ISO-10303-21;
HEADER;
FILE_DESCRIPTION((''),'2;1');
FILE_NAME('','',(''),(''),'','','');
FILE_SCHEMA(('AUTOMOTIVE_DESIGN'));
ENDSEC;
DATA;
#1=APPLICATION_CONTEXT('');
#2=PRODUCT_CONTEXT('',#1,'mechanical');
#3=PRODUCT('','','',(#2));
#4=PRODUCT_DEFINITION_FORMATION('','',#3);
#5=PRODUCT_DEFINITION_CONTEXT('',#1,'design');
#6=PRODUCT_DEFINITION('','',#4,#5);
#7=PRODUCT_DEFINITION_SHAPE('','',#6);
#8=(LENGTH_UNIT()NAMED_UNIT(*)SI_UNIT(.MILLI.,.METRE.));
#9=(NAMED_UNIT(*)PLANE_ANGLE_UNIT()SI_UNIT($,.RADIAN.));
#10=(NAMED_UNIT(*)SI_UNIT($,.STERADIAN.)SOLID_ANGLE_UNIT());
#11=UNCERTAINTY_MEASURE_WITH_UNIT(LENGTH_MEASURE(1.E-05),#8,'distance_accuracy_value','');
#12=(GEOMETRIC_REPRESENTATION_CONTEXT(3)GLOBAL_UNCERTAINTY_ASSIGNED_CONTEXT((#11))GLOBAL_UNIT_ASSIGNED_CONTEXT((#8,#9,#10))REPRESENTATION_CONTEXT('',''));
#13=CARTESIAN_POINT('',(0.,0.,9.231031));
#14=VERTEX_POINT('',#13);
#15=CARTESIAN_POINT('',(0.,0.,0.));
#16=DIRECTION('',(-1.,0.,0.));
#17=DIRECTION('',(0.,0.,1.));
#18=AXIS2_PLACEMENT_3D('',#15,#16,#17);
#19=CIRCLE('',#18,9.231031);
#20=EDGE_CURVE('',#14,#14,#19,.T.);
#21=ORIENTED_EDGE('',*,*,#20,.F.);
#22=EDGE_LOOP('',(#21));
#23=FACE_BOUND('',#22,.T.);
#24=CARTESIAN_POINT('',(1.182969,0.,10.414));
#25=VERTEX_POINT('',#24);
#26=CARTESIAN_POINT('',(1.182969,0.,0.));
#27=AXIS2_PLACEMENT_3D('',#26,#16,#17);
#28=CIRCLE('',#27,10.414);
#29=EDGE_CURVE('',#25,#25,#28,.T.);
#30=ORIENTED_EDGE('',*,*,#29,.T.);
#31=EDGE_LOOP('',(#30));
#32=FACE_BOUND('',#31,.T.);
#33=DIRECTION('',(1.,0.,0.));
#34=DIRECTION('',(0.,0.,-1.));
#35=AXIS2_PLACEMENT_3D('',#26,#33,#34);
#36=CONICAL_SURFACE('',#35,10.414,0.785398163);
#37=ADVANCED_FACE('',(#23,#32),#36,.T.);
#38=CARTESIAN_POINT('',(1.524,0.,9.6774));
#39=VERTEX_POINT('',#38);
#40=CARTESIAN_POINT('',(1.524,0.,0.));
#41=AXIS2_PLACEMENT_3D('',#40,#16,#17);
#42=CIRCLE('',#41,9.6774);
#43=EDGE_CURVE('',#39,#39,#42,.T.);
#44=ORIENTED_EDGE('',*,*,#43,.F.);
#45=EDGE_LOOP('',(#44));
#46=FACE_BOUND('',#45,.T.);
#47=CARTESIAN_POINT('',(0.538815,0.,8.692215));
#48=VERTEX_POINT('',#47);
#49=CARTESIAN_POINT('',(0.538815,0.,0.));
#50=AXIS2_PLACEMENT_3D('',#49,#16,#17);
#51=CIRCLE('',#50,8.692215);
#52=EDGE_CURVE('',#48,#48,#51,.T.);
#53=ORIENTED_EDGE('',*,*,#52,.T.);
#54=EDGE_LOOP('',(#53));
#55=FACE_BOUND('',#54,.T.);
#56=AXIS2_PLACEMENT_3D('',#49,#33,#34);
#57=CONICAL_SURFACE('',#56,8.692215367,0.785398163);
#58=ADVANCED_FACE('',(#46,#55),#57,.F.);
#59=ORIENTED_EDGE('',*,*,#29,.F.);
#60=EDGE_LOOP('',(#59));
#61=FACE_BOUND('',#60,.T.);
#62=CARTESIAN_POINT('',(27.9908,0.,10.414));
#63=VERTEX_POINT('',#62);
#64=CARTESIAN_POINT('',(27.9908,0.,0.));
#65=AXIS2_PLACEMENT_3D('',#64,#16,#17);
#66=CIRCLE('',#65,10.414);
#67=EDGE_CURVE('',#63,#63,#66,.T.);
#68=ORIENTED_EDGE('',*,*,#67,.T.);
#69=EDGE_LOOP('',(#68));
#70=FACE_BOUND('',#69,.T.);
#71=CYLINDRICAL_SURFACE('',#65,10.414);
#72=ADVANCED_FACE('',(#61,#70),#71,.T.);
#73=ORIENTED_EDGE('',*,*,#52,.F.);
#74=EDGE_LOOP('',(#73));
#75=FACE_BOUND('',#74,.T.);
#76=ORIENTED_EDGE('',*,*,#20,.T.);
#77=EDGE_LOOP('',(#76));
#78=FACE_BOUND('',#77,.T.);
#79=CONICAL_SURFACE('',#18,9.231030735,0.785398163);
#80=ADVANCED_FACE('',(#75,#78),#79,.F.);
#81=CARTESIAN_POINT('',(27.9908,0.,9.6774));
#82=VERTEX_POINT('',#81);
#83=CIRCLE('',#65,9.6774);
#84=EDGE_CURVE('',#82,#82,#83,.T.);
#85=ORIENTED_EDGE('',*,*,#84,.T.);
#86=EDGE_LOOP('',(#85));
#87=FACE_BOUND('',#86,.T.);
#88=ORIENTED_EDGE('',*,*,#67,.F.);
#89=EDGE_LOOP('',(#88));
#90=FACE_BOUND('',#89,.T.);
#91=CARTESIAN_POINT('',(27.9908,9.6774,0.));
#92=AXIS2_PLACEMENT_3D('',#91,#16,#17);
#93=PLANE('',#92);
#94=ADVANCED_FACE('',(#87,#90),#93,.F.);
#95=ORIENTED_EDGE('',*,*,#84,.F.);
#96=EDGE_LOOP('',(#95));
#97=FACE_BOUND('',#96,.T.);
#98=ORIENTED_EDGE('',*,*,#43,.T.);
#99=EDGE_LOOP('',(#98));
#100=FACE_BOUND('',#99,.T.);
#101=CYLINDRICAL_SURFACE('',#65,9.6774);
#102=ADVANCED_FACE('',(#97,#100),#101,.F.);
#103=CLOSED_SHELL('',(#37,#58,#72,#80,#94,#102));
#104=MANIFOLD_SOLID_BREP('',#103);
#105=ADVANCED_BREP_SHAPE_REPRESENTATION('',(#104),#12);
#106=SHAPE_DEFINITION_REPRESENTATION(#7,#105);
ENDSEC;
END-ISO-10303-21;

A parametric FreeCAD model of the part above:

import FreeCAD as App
import Part
import Sketcher
from FreeCAD import Vector
Q = App.Units.Quantity

doc = App.newDocument("Part")
body = doc.addObject("PartDesign::Body", "Body")

sketch1 = body.newObject("Sketcher::SketchObject", "Sketch")
sketch1.AttachmentSupport = (doc.getObject("XY_Plane"), [""])
sketch1.MapMode = "FlatFace"
sketch1.addGeometry(Part.LineSegment(Vector(0, 9.2, 0), Vector(0.5, 8.7, 0)), False)
sketch1.addGeometry(Part.LineSegment(Vector(0.5, 8.7, 0), Vector(1.5, 9.7, 0)), False)
sketch1.addGeometry(Part.LineSegment(Vector(1.5, 9.7, 0), Vector(28, 9.7, 0)), False)
sketch1.addGeometry(Part.LineSegment(Vector(28, 9.7, 0), Vector(28, 10.4, 0)), False)
sketch1.addGeometry(Part.LineSegment(Vector(28, 10.4, 0), Vector(1.2, 10.4, 0)), False)
sketch1.addGeometry(Part.LineSegment(Vector(1.2, 10.4, 0), Vector(0, 9.2, 0)), False)
sketch1.addConstraint(Sketcher.Constraint("Coincident", 0, 2, 1, 1))
sketch1.addConstraint(Sketcher.Constraint("Coincident", 1, 2, 2, 1))
sketch1.addConstraint(Sketcher.Constraint("Coincident", 2, 2, 3, 1))
sketch1.addConstraint(Sketcher.Constraint("Coincident", 3, 2, 4, 1))
sketch1.addConstraint(Sketcher.Constraint("Coincident", 4, 2, 5, 1))
sketch1.addConstraint(Sketcher.Constraint("Coincident", 5, 2, 0, 1))
sketch1.addConstraint(Sketcher.Constraint("Horizontal", 2))
sketch1.addConstraint(Sketcher.Constraint("Vertical", 3))
sketch1.addConstraint(Sketcher.Constraint("Horizontal", 4))
sketch1.addConstraint(Sketcher.Constraint("PointOnObject", 5, 2, -2))
sketch1.addConstraint(Sketcher.Constraint("Perpendicular", 0, 1))
sketch1.addConstraint(Sketcher.Constraint("Parallel", 1, 5))
sketch1.addConstraint(Sketcher.Constraint("Angle", 0, Q("-45 deg")))
sketch1.addConstraint(Sketcher.Constraint("Distance", 0, Q("0.03 in")))
sketch1.addConstraint(Sketcher.Constraint("DistanceX", 2, 1, 2, 2, Q("1.042 in")))
sketch1.addConstraint(Sketcher.Constraint("DistanceY", 3, 1, 3, 2, Q("0.029 in")))
sketch1.addConstraint(Sketcher.Constraint("DistanceX", -1, 1, 1, 2, Q("0.06 in")))
sketch1.addConstraint(Sketcher.Constraint("DistanceY", -1, 1, 3, 2, Q("0.41 in")))
revolution = body.newObject("PartDesign::Revolution", "Revolution")
revolution.Profile = sketch1
revolution.ReferenceAxis = (sketch1, ["H_Axis"])
revolution.Angle = 360

doc.recompute()
